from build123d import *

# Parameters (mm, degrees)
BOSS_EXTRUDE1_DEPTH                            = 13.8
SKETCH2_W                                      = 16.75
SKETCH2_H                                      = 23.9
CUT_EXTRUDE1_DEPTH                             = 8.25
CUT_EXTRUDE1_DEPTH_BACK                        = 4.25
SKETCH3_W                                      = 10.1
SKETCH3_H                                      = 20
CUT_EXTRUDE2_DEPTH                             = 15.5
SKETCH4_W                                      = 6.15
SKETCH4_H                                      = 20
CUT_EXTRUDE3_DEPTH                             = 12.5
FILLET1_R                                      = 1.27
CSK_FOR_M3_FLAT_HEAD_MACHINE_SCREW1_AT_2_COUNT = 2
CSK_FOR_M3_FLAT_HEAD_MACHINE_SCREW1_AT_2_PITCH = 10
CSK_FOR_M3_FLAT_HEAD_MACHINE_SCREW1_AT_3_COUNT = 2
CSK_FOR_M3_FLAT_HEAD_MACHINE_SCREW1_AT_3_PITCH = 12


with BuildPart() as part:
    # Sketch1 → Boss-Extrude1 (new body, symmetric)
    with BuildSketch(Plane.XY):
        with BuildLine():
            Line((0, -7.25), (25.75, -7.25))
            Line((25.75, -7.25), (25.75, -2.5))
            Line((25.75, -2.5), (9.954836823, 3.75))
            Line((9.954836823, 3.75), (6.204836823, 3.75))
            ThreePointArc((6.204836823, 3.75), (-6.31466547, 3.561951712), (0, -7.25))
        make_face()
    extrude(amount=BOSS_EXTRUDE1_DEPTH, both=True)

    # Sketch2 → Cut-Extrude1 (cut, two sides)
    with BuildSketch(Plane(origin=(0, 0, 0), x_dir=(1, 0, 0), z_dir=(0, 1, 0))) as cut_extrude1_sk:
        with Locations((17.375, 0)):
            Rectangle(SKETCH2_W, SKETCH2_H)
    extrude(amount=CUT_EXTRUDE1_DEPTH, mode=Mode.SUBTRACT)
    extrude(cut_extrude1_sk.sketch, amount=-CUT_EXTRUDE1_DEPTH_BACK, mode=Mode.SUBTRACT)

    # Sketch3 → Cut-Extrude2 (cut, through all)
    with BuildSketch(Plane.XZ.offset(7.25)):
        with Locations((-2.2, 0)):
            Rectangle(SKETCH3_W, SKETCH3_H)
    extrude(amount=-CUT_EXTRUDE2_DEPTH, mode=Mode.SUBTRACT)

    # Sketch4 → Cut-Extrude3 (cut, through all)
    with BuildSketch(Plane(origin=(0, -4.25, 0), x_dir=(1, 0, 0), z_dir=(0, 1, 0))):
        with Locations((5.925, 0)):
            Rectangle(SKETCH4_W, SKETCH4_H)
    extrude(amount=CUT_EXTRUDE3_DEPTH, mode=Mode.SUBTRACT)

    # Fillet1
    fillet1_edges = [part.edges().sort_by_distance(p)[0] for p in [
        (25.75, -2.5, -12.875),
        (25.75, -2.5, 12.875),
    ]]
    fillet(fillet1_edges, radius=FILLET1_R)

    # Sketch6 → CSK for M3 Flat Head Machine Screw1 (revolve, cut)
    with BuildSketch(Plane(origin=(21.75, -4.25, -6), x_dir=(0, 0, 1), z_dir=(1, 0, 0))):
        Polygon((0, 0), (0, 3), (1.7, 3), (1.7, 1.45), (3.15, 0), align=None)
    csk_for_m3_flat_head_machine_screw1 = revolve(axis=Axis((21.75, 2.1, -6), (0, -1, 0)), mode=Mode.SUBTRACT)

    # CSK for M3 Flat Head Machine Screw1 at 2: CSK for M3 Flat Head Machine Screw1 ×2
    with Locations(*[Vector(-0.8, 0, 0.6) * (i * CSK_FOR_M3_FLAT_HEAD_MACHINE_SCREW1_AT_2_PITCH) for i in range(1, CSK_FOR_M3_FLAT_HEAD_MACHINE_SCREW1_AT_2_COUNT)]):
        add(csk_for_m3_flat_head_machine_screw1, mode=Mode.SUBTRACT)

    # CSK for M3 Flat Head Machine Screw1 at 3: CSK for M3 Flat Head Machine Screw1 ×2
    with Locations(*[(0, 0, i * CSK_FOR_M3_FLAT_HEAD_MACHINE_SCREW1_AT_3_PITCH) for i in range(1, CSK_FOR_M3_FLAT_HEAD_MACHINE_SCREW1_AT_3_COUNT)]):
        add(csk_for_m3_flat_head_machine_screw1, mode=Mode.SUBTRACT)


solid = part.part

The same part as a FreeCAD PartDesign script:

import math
import FreeCAD as App
import Part
import Sketcher

V = App.Vector
Q = App.Units.Quantity


def edges_at(feature, points):
    """Names of the edges that pass closest to the given points."""
    edges = feature.Shape.Edges
    near = lambda p: min(range(len(edges)), key=lambda i: edges[i].distToShape(Part.Vertex(*p))[0])
    return sorted({f"Edge{near(p) + 1}" for p in points})


def add_polygon(sketch, points):
    """Adds a closed chain of lines whose ends are joined by coincident constraints."""
    first, n = sketch.GeometryCount, len(points)
    for a, b in zip(points, points[1:] + points[:1]):
        sketch.addGeometry(Part.LineSegment(App.Vector(*a, 0), App.Vector(*b, 0)), False)
    for i in range(n):
        sketch.addConstraint(Sketcher.Constraint("Coincident", first + i, 2, first + (i + 1) % n, 1))

doc = App.newDocument("Part")
params = doc.addObject("Spreadsheet::Sheet", "Params")
for row, (alias, value) in enumerate([
    ("sketch1_radius", "7.25 mm"),
    ("sketch1_width", "25.75 mm"),
    ("sketch1_width2", "3.75 mm"),
    ("sketch1_height", "4.75 mm"),
    ("pad1_length", "27.6 mm"),
    ("sketch2_height", "23.9 mm"),
    ("sketch2_width", "16.75 mm"),
    ("pocket1_length", "8.25 mm"),
    ("pocket1_length2", "4.25 mm"),
    ("sketch3_height", "20 mm"),
    ("sketch3_width", "10.1 mm"),
    ("sketch4_height", "20 mm"),
    ("sketch4_width", "6.15 mm"),
    ("fillet_radius", "1.27 mm"),
    ("sketch5_width", "3 mm"),
    ("sketch5_height", "1.7 mm"),
    ("sketch5_width2", "1.55 mm"),
    ("groove_angle", "360 deg"),
    ("linearpattern_pitch", "10 mm"),
    ("linearpattern2_pitch", "12 mm"),
], start=1):
    params.set(f"A{row}", alias)
    params.set(f"B{row}", "=" + value)
    params.setAlias(f"B{row}", alias)

body = doc.addObject("PartDesign::Body", "Body")

# Sketch on XY plane
sketch1 = body.newObject("Sketcher::SketchObject", "Sketch")
sketch1.AttachmentSupport = (doc.getObject("XY_Plane"), [""])
sketch1.MapMode = "FlatFace"
sketch1.addGeometry([
    Part.LineSegment(V(0, -7.2, 0), V(25.8, -7.2, 0)),  # 0
    Part.LineSegment(V(25.8, -7.2, 0), V(25.8, -2.5, 0)),  # 1
    Part.LineSegment(V(25.8, -2.5, 0), V(10, 3.8, 0)),  # 2
    Part.LineSegment(V(10, 3.8, 0), V(6.2, 3.8, 0)),  # 3
    Part.ArcOfCircle(Part.Circle(V(0, 0, 0), V(0, 0, 1), 7.2), math.radians(31), math.radians(270)),  # 4
], False)
sketch1.addConstraint([
    Sketcher.Constraint("Coincident", 0, 2, 1, 1),
    Sketcher.Constraint("Coincident", 1, 2, 2, 1),
    Sketcher.Constraint("Coincident", 2, 2, 3, 1),
    Sketcher.Constraint("Coincident", 3, 2, 4, 1),
    Sketcher.Constraint("Tangent", 4, 2, 0, 1),
    Sketcher.Constraint("Horizontal", 0),
    Sketcher.Constraint("Vertical", 1),
    Sketcher.Constraint("Horizontal", 3),
    Sketcher.Constraint("Coincident", 4, 3, -1, 1),
    Sketcher.Constraint("Radius", 4, Q("7.25 mm")),
    Sketcher.Constraint("DistanceY", 0, 2, 2, 2, Q("11 mm")),
    Sketcher.Constraint("DistanceX", 0, 1, 0, 2, Q("25.75 mm")),
    Sketcher.Constraint("DistanceX", 3, 2, 3, 1, Q("3.75 mm")),
    Sketcher.Constraint("DistanceY", 1, 1, 1, 2, Q("4.75 mm")),
])
sketch1.setExpression("Constraints[9]", "Params.sketch1_radius")
sketch1.setExpression("Constraints[11]", "Params.sketch1_width")
sketch1.setExpression("Constraints[12]", "Params.sketch1_width2")
sketch1.setExpression("Constraints[13]", "Params.sketch1_height")
pad1 = body.newObject("PartDesign::Pad", "Pad")
pad1.Profile = sketch1
pad1.setExpression("Length", "Params.pad1_length")
pad1.Midplane = True

# Sketch on XZ plane
sketch2 = body.newObject("Sketcher::SketchObject", "Sketch001")
sketch2.AttachmentSupport = (doc.getObject("XZ_Plane"), [""])
sketch2.MapMode = "FlatFace"
add_polygon(sketch2, [(9, -12), (9, 12), (26, 12), (26, -12)])  # lines 0-3
sketch2.addConstraint([
    Sketcher.Constraint("Vertical", 0),
    Sketcher.Constraint("Horizontal", 1),
    Sketcher.Constraint("Vertical", 2),
    Sketcher.Constraint("Horizontal", 3),
    Sketcher.Constraint("DistanceY", 0, 1, 0, 2, Q("23.9 mm")),
    Sketcher.Constraint("DistanceX", -1, 1, 0, 2, Q("9 mm")),
    Sketcher.Constraint("DistanceX", 1, 1, 1, 2, Q("16.75 mm")),
    Sketcher.Constraint("DistanceY", -1, 1, 0, 2, Q("11.95 mm")),
])
sketch2.setExpression("Constraints[8]", "Params.sketch2_height")
sketch2.setExpression("Constraints[10]", "Params.sketch2_width")
pocket1 = body.newObject("PartDesign::Pocket", "Pocket")
pocket1.Profile = sketch2
pocket1.Type = "TwoLengths"
pocket1.setExpression("Length", "Params.pocket1_length")
pocket1.setExpression("Length2", "Params.pocket1_length2")

# Sketch on XZ plane
sketch3 = body.newObject("Sketcher::SketchObject", "Sketch002")
sketch3.AttachmentSupport = (doc.getObject("XZ_Plane"), [""])
sketch3.MapMode = "FlatFace"
sketch3.AttachmentOffset = App.Placement(V(0, 0, 7.25), App.Rotation())
add_polygon(sketch3, [(-7, 10), (-7, -10), (3, -10), (3, 10)])  # lines 0-3
sketch3.addConstraint([
    Sketcher.Constraint("Vertical", 0),
    Sketcher.Constraint("Horizontal", 1),
    Sketcher.Constraint("Vertical", 2),
    Sketcher.Constraint("Horizontal", 3),
    Sketcher.Constraint("DistanceY", 0, 2, 0, 1, Q("20 mm")),
    Sketcher.Constraint("DistanceX", 1, 1, 1, 2, Q("10.1 mm")),
    Sketcher.Constraint("DistanceY", 0, 2, -1, 1, Q("10 mm")),
    Sketcher.Constraint("DistanceX", 0, 2, -1, 1, Q("7.25 mm")),
])
sketch3.setExpression("Constraints[8]", "Params.sketch3_height")
sketch3.setExpression("Constraints[9]", "Params.sketch3_width")
pocket2 = body.newObject("PartDesign::Pocket", "Pocket001")
pocket2.Profile = sketch3
pocket2.Type = "ThroughAll"

# Sketch on XZ plane
sketch4 = body.newObject("Sketcher::SketchObject", "Sketch003")
sketch4.AttachmentSupport = (doc.getObject("XZ_Plane"), [""])
sketch4.MapMode = "FlatFace"
sketch4.AttachmentOffset = App.Placement(V(0, 0, 4.25), App.Rotation())
add_polygon(sketch4, [(3, -10), (3, 10), (9, 10), (9, -10)])  # lines 0-3
sketch4.addConstraint([
    Sketcher.Constraint("Vertical", 0),
    Sketcher.Constraint("Horizontal", 1),
    Sketcher.Constraint("Vertical", 2),
    Sketcher.Constraint("Horizontal", 3),
    Sketcher.Constraint("DistanceY", 0, 1, 0, 2, Q("20 mm")),
    Sketcher.Constraint("DistanceY", -1, 1, 0, 2, Q("10 mm")),
    Sketcher.Constraint("DistanceX", -1, 1, 1, 2, Q("9 mm")),
    Sketcher.Constraint("DistanceX", 1, 1, 1, 2, Q("6.15 mm")),
])
sketch4.setExpression("Constraints[8]", "Params.sketch4_height")
sketch4.setExpression("Constraints[11]", "Params.sketch4_width")
pocket3 = body.newObject("PartDesign::Pocket", "Pocket002")
pocket3.Profile = sketch4
pocket3.Type = "ThroughAll"
doc.recompute()

fillet = body.newObject("PartDesign::Fillet", "Fillet")
fillet.Base = (pocket3, edges_at(pocket3, [(25.75, -2.5, -12.875), (25.75, -2.5, 12.875)]))
fillet.setExpression("Radius", "Params.fillet_radius")

# Sketch on YZ plane
sketch5 = body.newObject("Sketcher::SketchObject", "Sketch004")
sketch5.AttachmentSupport = (doc.getObject("YZ_Plane"), [""])
sketch5.MapMode = "FlatFace"
sketch5.AttachmentOffset = App.Placement(V(0, 0, 21.75), App.Rotation())
add_polygon(sketch5, [(-7.2, -6), (-4.2, -6), (-4.2, -2.9), (-5.7, -4.3), (-7.2, -4.3)])  # lines 0-4
sketch5.addGeometry(Part.LineSegment(V(-4.2, -6, 0), V(-7.2, -6, 0)), True)  # axis
sketch5.addConstraint([
    Sketcher.Constraint("Horizontal", 0),
    Sketcher.Constraint("Vertical", 1),
    Sketcher.Constraint("Horizontal", 3),
    Sketcher.Constraint("Vertical", 4),
    Sketcher.Constraint("Horizontal", 5),
    Sketcher.Constraint("Coincident", 5, 1, 0, 2),
    Sketcher.Constraint("Vertical", 3, 2, 5, 2),
    Sketcher.Constraint("DistanceX", 0, 1, 0, 2, Q("3 mm")),
    Sketcher.Constraint("Angle", 2, Q("-135 deg")),
    Sketcher.Constraint("DistanceY", 4, 2, 4, 1, Q("1.7 mm")),
    Sketcher.Constraint("DistanceY", 0, 2, -1, 1, Q("6 mm")),
    Sketcher.Constraint("DistanceX", 3, 2, 3, 1, Q("1.55 mm")),
    Sketcher.Constraint("DistanceX", 2, 2, -1, 1, Q("5.7 mm")),
])
sketch5.setExpression("Constraints[12]", "Params.sketch5_width")
sketch5.setExpression("Constraints[14]", "Params.sketch5_height")
sketch5.setExpression("Constraints[16]", "Params.sketch5_width2")
groove = body.newObject("PartDesign::Groove", "Groove")
groove.Profile = sketch5
groove.ReferenceAxis = (sketch5, ["Axis0"])
groove.setExpression("Angle", "Params.groove_angle")
doc.recompute()

datumline = body.newObject("PartDesign::Line", "DatumLine")
datumline.Placement = App.Placement(V(0, 0, 0), App.Rotation(V(0, 0, 1), V(-0.8, 0, 0.6)))
linearpattern = body.newObject("PartDesign::LinearPattern", "LinearPattern")
linearpattern.Originals = [groove]
linearpattern.Direction = (datumline, [""])
linearpattern.Mode = "offset"
linearpattern.setExpression("Offset", "Params.linearpattern_pitch")
linearpattern.Occurrences = 2
body.Tip = linearpattern
doc.recompute()

linearpattern2 = body.newObject("PartDesign::LinearPattern", "LinearPattern001")
linearpattern2.Originals = [groove]
linearpattern2.Direction = (doc.getObject("Z_Axis"), [""])
linearpattern2.Mode = "offset"
linearpattern2.setExpression("Offset", "Params.linearpattern2_pitch")
linearpattern2.Occurrences = 2
body.Tip = linearpattern2

doc.recompute()
